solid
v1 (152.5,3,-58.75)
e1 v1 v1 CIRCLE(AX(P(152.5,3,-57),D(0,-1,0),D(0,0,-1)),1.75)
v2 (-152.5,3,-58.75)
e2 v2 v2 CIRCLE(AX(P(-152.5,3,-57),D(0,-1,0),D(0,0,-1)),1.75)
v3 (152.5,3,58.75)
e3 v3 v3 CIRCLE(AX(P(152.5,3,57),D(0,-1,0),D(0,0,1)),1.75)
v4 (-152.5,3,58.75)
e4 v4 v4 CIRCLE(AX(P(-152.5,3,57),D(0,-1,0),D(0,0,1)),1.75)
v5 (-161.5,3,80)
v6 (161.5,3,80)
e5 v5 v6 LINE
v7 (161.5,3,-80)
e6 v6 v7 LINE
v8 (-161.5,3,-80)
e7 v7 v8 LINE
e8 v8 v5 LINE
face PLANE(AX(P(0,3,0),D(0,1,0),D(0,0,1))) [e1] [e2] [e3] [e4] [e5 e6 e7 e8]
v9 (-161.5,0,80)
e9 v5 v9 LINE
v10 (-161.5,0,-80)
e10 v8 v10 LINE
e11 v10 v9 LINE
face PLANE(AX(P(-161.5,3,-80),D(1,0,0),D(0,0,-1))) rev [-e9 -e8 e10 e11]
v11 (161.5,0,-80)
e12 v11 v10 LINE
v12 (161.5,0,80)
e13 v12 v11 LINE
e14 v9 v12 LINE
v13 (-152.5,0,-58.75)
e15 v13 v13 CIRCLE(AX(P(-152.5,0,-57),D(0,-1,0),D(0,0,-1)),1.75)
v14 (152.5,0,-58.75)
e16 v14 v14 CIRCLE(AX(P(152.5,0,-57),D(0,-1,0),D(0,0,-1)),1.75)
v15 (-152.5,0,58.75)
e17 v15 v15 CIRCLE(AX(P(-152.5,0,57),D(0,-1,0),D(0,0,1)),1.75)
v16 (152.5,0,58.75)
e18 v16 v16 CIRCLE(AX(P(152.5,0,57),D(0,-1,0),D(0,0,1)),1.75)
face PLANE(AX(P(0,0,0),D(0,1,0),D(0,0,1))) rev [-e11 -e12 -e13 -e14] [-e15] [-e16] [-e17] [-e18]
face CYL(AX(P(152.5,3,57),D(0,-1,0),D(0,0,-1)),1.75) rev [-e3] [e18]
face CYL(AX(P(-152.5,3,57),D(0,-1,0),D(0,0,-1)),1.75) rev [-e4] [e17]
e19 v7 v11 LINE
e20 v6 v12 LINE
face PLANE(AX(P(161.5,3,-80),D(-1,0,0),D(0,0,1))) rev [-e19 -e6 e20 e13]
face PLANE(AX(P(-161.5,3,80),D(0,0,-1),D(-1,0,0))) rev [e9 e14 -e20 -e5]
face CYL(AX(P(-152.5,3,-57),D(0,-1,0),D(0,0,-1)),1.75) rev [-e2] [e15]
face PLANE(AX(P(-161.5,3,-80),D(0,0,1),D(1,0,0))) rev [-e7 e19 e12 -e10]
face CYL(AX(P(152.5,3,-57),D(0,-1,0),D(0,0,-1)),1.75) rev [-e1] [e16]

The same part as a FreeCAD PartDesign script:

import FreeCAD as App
import Part
import Sketcher

V = App.Vector


def add_polygon(sketch, points):
    """Adds a closed chain of lines whose ends are joined by coincident constraints."""
    first, n = sketch.GeometryCount, len(points)
    for a, b in zip(points, points[1:] + points[:1]):
        sketch.addGeometry(Part.LineSegment(App.Vector(*a, 0), App.Vector(*b, 0)), False)
    for i in range(n):
        sketch.addConstraint(Sketcher.Constraint("Coincident", first + i, 2, first + (i + 1) % n, 1))

doc = App.newDocument("Part")
body = doc.addObject("PartDesign::Body", "Body")

# Sketch on XZ plane
sketch1 = doc.addObject("Sketcher::SketchObject", "Sketch")
body.addObject(sketch1)
sketch1.AttachmentSupport = (doc.XZ_Plane, [""])
sketch1.MapMode = "FlatFace"
add_polygon(sketch1, [(-161.5, -80), (-161.5, 80), (161.5, 80), (161.5, -80)])  # lines 0-3
sketch1.addConstraint([
    Sketcher.Constraint("Vertical", 0),
    Sketcher.Constraint("Horizontal", 1),
    Sketcher.Constraint("Vertical", 2),
    Sketcher.Constraint("Horizontal", 3),
    Sketcher.Constraint("Symmetric", 0, 2, 2, 2, -1, 1),
    Sketcher.Constraint("DistanceX", 1, 1, 1, 2, 323.0),
    Sketcher.Constraint("DistanceY", 0, 1, 0, 2, 160.0),
])
pad1 = doc.addObject("PartDesign::Pad", "Pad")
body.addObject(pad1)
pad1.Profile = sketch1
pad1.Length = 3
pad1.Reversed = True

# Sketch on XZ plane
sketch2 = doc.addObject("Sketcher::SketchObject", "Sketch001")
body.addObject(sketch2)
sketch2.AttachmentSupport = (doc.XZ_Plane, [""])
sketch2.MapMode = "FlatFace"
sketch2.addGeometry([
    Part.Circle(V(-152.5, -57, 0), V(0, 0, 1), 1.75),
    Part.Circle(V(152.5, -57, 0), V(0, 0, 1), 1.75),
    Part.Circle(V(152.5, 57, 0), V(0, 0, 1), 1.75),
    Part.Circle(V(-152.5, 57, 0), V(0, 0, 1), 1.75),
], False)
sketch2.addConstraint([
    Sketcher.Constraint("Equal", 0, 1),
    Sketcher.Constraint("Equal", 1, 2),
    Sketcher.Constraint("Equal", 2, 3),
    Sketcher.Constraint("Symmetric", 0, 3, 2, 3, -1, 1),
    Sketcher.Constraint("Symmetric", 1, 3, 3, 3, -1, 1),
    Sketcher.Constraint("Symmetric", 0, 3, 1, 3, -2),
    Sketcher.Constraint("Diameter", 0, 3.5),
    Sketcher.Constraint("DistanceY", 0, 3, -1, 1, 57.0),
    Sketcher.Constraint("DistanceX", 0, 3, 1, 3, 305.0),
])
pocket1 = doc.addObject("PartDesign::Pocket", "Pocket")
body.addObject(pocket1)
pocket1.Profile = sketch2
pocket1.Type = "ThroughAll"

doc.recompute()
